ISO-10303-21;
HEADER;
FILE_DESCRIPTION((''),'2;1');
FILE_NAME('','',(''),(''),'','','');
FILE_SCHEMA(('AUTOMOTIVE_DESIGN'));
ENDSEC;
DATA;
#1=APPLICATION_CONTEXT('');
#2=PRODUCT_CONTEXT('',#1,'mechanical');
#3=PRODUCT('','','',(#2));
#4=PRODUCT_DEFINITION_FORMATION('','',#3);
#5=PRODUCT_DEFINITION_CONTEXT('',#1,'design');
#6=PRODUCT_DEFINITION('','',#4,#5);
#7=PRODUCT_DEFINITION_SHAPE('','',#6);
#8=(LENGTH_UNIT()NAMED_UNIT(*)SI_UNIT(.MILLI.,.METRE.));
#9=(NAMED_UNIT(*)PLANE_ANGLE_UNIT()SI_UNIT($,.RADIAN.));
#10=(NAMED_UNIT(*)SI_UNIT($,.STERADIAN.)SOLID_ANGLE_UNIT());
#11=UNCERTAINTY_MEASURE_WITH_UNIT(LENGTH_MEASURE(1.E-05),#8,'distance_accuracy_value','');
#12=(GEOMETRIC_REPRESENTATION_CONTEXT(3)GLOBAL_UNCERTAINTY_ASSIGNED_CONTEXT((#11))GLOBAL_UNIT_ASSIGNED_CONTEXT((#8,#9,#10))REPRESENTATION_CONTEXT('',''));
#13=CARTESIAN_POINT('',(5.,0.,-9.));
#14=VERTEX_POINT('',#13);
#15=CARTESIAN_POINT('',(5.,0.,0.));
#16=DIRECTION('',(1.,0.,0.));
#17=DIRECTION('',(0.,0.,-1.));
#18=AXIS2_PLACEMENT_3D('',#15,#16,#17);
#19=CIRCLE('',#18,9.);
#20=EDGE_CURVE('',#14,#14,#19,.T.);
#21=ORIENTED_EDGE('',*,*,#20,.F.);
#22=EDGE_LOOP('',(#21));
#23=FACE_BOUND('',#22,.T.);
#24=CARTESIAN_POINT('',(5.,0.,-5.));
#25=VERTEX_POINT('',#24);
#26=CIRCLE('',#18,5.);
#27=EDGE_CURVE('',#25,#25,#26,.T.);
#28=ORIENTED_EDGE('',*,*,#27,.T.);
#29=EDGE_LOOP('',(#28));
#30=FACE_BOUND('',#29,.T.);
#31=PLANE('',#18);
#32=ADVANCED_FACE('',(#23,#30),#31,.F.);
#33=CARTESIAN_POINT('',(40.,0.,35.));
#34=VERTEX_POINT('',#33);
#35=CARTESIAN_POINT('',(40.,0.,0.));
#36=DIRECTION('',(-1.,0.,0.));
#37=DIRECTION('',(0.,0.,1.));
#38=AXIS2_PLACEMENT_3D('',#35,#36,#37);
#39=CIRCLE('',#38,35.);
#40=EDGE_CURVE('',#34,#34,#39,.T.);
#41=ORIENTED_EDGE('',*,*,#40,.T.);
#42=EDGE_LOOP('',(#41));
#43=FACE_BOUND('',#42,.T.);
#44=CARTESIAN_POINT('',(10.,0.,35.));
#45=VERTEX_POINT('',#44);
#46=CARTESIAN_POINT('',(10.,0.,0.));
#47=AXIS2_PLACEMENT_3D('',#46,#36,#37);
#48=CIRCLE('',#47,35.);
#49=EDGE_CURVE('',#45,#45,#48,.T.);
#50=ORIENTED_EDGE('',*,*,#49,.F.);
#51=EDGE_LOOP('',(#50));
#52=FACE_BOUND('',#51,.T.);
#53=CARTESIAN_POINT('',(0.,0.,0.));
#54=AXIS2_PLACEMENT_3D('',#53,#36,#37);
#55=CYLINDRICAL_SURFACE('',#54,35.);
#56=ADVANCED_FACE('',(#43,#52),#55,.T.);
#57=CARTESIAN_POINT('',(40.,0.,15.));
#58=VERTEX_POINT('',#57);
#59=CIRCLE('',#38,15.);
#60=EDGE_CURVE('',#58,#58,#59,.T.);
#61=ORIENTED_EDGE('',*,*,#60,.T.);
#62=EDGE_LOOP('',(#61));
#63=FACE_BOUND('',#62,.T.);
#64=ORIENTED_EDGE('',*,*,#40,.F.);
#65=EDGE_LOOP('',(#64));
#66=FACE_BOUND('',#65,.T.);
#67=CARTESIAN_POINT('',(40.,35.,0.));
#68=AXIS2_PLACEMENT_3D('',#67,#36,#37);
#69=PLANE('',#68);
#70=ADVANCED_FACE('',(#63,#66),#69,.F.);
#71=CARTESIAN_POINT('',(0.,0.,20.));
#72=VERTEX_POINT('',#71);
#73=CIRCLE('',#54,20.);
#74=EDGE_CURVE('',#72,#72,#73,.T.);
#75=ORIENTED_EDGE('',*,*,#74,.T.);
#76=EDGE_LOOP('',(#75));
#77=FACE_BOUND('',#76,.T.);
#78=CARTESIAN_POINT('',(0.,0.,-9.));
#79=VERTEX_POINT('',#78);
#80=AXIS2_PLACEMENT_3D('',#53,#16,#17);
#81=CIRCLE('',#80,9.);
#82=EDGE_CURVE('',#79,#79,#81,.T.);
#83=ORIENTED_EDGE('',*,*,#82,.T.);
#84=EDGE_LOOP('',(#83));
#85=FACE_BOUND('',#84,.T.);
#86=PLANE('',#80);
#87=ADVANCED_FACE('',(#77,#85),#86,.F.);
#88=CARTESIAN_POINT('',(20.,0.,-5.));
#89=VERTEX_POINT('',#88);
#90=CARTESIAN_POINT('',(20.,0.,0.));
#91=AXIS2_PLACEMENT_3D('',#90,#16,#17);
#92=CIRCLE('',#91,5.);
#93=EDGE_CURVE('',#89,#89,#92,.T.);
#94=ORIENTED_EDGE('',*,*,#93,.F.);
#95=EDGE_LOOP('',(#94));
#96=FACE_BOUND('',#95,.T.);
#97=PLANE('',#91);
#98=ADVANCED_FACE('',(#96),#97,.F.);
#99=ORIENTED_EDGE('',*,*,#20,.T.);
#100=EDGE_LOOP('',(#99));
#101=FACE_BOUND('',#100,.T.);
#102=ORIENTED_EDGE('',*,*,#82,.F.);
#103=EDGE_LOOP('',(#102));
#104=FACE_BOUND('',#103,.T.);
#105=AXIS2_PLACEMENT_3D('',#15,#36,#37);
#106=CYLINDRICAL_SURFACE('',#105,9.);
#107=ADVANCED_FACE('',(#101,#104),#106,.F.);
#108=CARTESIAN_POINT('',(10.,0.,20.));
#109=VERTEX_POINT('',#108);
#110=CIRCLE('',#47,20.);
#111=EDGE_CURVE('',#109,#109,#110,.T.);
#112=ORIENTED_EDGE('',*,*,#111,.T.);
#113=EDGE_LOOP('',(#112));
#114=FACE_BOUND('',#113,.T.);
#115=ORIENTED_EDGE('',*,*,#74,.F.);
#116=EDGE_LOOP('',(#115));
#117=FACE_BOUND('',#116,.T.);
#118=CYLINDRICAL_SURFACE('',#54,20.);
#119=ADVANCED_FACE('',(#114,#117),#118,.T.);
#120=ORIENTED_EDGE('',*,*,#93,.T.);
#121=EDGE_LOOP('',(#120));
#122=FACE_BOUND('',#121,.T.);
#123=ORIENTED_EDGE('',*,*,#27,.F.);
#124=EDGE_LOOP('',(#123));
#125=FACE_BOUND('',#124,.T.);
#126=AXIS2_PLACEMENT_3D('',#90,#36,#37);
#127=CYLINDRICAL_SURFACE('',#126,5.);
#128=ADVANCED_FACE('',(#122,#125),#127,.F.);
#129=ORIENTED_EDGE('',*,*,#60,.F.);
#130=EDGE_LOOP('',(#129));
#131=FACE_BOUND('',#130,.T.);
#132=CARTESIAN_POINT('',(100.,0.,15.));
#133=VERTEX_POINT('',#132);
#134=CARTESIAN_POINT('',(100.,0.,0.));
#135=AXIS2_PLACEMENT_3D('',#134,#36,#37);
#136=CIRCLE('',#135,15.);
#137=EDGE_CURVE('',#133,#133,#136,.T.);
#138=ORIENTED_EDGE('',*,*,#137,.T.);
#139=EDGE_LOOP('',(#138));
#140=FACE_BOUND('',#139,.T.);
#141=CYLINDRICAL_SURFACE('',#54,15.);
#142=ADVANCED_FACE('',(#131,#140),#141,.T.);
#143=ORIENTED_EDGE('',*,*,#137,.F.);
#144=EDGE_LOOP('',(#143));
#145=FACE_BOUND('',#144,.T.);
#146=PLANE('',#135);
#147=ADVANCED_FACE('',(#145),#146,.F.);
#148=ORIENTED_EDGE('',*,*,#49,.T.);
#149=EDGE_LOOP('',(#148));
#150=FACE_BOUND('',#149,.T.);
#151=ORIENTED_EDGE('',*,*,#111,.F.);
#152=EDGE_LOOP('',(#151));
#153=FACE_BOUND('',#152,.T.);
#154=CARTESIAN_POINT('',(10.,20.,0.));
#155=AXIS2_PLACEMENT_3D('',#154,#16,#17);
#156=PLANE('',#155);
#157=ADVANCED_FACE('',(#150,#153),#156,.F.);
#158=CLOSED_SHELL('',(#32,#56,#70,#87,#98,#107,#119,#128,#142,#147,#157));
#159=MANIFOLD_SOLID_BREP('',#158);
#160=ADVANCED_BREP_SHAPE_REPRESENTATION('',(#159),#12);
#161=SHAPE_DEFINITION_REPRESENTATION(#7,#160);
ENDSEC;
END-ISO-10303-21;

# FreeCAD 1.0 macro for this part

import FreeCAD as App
import Part
import Sketcher
Q = App.Units.Quantity


def add_polygon(sketch, points):
    """Adds a closed chain of lines whose ends are joined by coincident constraints."""
    first, n = sketch.GeometryCount, len(points)
    for a, b in zip(points, points[1:] + points[:1]):
        sketch.addGeometry(Part.LineSegment(App.Vector(*a, 0), App.Vector(*b, 0)), False)
    for i in range(n):
        sketch.addConstraint(Sketcher.Constraint("Coincident", first + i, 2, first + (i + 1) % n, 1))

doc = App.newDocument("Part")
params = doc.addObject("Spreadsheet::Sheet", "Params")
for row, (alias, value) in enumerate([
    ("sketch1_width", "100 mm"),
    ("sketch1_width2", "60 mm"),
    ("sketch1_width3", "30 mm"),
    ("sketch1_height", "15 mm"),
    ("sketch1_height2", "20 mm"),
    ("revolution_angle", "360 deg"),
    ("sketch2_diameter", "10 mm"),
    ("pocket1_length", "20 mm"),
    ("sketch3_diameter", "18 mm"),
    ("pocket2_length", "5 mm"),
], start=1):
    params.set(f"A{row}", alias)
    params.set(f"B{row}", "=" + value)
    params.setAlias(f"B{row}", alias)

body = doc.addObject("PartDesign::Body", "Body")

sketch1 = body.newObject("Sketcher::SketchObject", "Sketch")
sketch1.AttachmentSupport = (doc.getObject("XY_Plane"), [""])
sketch1.MapMode = "FlatFace"
add_polygon(sketch1, [(0, 0), (100, 0), (100, 15), (40, 15), (40, 35), (10, 35), (10, 20), (0, 20)])
sketch1.addConstraint(Sketcher.Constraint("Horizontal", 0))
sketch1.addConstraint(Sketcher.Constraint("Vertical", 1))
sketch1.addConstraint(Sketcher.Constraint("Horizontal", 2))
sketch1.addConstraint(Sketcher.Constraint("Vertical", 3))
sketch1.addConstraint(Sketcher.Constraint("Horizontal", 4))
sketch1.addConstraint(Sketcher.Constraint("Vertical", 5))
sketch1.addConstraint(Sketcher.Constraint("Horizontal", 6))
sketch1.addConstraint(Sketcher.Constraint("Vertical", 7))
sketch1.addConstraint(Sketcher.Constraint("Coincident", 7, 2, -1, 1))
sketch1.addConstraint(Sketcher.Constraint("Equal", 1, 5))
sketch1.addConstraint(Sketcher.Constraint("DistanceX", 0, 1, 0, 2, Q("100 mm")))
sketch1.addConstraint(Sketcher.Constraint("DistanceX", 2, 2, 2, 1, Q("60 mm")))
sketch1.addConstraint(Sketcher.Constraint("DistanceX", 4, 2, 4, 1, Q("30 mm")))
sketch1.addConstraint(Sketcher.Constraint("DistanceY", 1, 1, 1, 2, Q("15 mm")))
sketch1.addConstraint(Sketcher.Constraint("DistanceY", 3, 1, 3, 2, Q("20 mm")))
sketch1.setExpression("Constraints[18]", "Params.sketch1_width")
sketch1.setExpression("Constraints[19]", "Params.sketch1_width2")
sketch1.setExpression("Constraints[20]", "Params.sketch1_width3")
sketch1.setExpression("Constraints[21]", "Params.sketch1_height")
sketch1.setExpression("Constraints[22]", "Params.sketch1_height2")
revolution = body.newObject("PartDesign::Revolution", "Revolution")
revolution.Profile = sketch1
revolution.ReferenceAxis = (sketch1, ["H_Axis"])
revolution.setExpression("Angle", "Params.revolution_angle")

sketch2 = body.newObject("Sketcher::SketchObject", "Sketch001")
sketch2.AttachmentSupport = (doc.getObject("YZ_Plane"), [""])
sketch2.MapMode = "FlatFace"
sketch2.addGeometry(Part.Circle(App.Vector(0, 0, 0), App.Vector(0, 0, 1), 5), False)
sketch2.addConstraint(Sketcher.Constraint("Coincident", 0, 3, -1, 1))
sketch2.addConstraint(Sketcher.Constraint("Diameter", 0, Q("10 mm")))
sketch2.setExpression("Constraints[1]", "Params.sketch2_diameter")
pocket1 = body.newObject("PartDesign::Pocket", "Pocket")
pocket1.Profile = sketch2
pocket1.setExpression("Length", "Params.pocket1_length")
pocket1.Reversed = True

sketch3 = body.newObject("Sketcher::SketchObject", "Sketch002")
sketch3.AttachmentSupport = (doc.getObject("YZ_Plane"), [""])
sketch3.MapMode = "FlatFace"
sketch3.addGeometry(Part.Circle(App.Vector(0, 0, 0), App.Vector(0, 0, 1), 9), False)
sketch3.addConstraint(Sketcher.Constraint("Coincident", 0, 3, -1, 1))
sketch3.addConstraint(Sketcher.Constraint("Diameter", 0, Q("18 mm")))
sketch3.setExpression("Constraints[1]", "Params.sketch3_diameter")
pocket2 = body.newObject("PartDesign::Pocket", "Pocket001")
pocket2.Profile = sketch3
pocket2.setExpression("Length", "Params.pocket2_length")
pocket2.Reversed = True

doc.recompute()
